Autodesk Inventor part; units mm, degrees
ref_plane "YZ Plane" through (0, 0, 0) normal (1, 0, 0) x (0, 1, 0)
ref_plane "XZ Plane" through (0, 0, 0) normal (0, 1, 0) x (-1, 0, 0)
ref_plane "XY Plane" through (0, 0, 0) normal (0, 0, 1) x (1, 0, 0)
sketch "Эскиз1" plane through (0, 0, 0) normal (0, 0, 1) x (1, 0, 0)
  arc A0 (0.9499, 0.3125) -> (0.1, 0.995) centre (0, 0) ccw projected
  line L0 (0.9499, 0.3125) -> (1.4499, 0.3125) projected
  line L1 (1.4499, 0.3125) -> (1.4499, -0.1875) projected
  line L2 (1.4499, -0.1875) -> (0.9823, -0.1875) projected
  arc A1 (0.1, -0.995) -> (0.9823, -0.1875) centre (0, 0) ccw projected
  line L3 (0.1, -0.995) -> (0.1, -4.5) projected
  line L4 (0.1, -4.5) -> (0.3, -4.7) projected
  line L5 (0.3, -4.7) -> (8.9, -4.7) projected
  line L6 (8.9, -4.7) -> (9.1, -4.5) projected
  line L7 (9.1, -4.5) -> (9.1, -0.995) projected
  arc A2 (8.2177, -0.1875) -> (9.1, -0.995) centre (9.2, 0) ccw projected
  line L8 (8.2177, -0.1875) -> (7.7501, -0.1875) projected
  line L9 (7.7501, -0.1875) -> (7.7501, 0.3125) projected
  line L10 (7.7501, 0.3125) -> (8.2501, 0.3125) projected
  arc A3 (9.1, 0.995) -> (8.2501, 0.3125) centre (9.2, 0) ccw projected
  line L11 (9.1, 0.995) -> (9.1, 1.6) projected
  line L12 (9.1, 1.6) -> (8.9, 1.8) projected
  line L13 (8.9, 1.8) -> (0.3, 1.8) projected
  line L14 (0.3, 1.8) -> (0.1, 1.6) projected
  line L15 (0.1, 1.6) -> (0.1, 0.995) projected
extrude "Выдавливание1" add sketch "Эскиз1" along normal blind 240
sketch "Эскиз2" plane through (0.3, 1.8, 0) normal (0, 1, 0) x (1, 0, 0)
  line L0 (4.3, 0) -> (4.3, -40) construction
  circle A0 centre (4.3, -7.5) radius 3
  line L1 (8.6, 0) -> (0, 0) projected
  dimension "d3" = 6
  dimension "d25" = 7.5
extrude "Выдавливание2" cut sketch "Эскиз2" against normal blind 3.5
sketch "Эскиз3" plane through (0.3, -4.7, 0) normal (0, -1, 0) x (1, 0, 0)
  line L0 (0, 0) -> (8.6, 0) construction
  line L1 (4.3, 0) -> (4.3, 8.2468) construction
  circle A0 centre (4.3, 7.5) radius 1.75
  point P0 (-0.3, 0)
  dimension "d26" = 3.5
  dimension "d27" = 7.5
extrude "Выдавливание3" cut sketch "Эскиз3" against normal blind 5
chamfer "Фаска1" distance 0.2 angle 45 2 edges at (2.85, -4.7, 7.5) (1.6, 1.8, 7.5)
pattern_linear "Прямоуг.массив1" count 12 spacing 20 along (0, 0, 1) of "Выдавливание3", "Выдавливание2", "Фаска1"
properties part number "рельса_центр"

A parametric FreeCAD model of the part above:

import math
import FreeCAD as App
import Part
import Sketcher

V = App.Vector


def edges_at(feature, points):
    """Names of the edges that pass closest to the given points."""
    edges = feature.Shape.Edges
    near = lambda p: min(range(len(edges)), key=lambda i: edges[i].distToShape(Part.Vertex(*p))[0])
    return sorted({f"Edge{near(p) + 1}" for p in points})

doc = App.newDocument("Part")
body = doc.addObject("PartDesign::Body", "Body")

sketch1 = body.newObject("Sketcher::SketchObject", "Sketch")
sketch1.AttachmentSupport = (doc.getObject("XY_Plane"), [""])
sketch1.MapMode = "FlatFace"
sketch1.addGeometry([
    Part.ArcOfCircle(Part.Circle(V(0, 0, 0), V(0, 0, 1), 1), math.radians(18), math.radians(84)),
    Part.LineSegment(V(0.95, 0.31, 0), V(1.45, 0.31, 0)),
    Part.LineSegment(V(1.45, 0.31, 0), V(1.45, -0.19, 0)),
    Part.LineSegment(V(1.45, -0.19, 0), V(0.98, -0.19, 0)),
    Part.ArcOfCircle(Part.Circle(V(0, 0, 0), V(0, 0, 1), 1), math.radians(-84), math.radians(-11)),
    Part.LineSegment(V(0.1, -0.99, 0), V(0.1, -4.5, 0)),
    Part.LineSegment(V(0.1, -4.5, 0), V(0.3, -4.7, 0)),
    Part.LineSegment(V(0.3, -4.7, 0), V(8.9, -4.7, 0)),
    Part.LineSegment(V(8.9, -4.7, 0), V(9.1, -4.5, 0)),
    Part.LineSegment(V(9.1, -4.5, 0), V(9.1, -0.99, 0)),
    Part.ArcOfCircle(Part.Circle(V(9.2, 0, 0), V(0, 0, 1), 1), math.radians(-169), math.radians(-96)),
    Part.LineSegment(V(8.22, -0.19, 0), V(7.75, -0.19, 0)),
    Part.LineSegment(V(7.75, -0.19, 0), V(7.75, 0.31, 0)),
    Part.LineSegment(V(7.75, 0.31, 0), V(8.25, 0.31, 0)),
    Part.ArcOfCircle(Part.Circle(V(9.2, 0, 0), V(0, 0, 1), 1), math.radians(96), math.radians(162)),
    Part.LineSegment(V(9.1, 0.99, 0), V(9.1, 1.6, 0)),
    Part.LineSegment(V(9.1, 1.6, 0), V(8.9, 1.8, 0)),
    Part.LineSegment(V(8.9, 1.8, 0), V(0.3, 1.8, 0)),
    Part.LineSegment(V(0.3, 1.8, 0), V(0.1, 1.6, 0)),
    Part.LineSegment(V(0.1, 1.6, 0), V(0.1, 0.99, 0)),
], False)
sketch1.addConstraint([
    Sketcher.Constraint("Coincident", 0, 1, 1, 1),
    Sketcher.Constraint("Coincident", 1, 2, 2, 1),
    Sketcher.Constraint("Coincident", 2, 2, 3, 1),
    Sketcher.Constraint("Coincident", 3, 2, 4, 2),
    Sketcher.Constraint("Coincident", 4, 1, 5, 1),
    Sketcher.Constraint("Coincident", 5, 2, 6, 1),
    Sketcher.Constraint("Coincident", 6, 2, 7, 1),
    Sketcher.Constraint("Coincident", 7, 2, 8, 1),
    Sketcher.Constraint("Coincident", 8, 2, 9, 1),
    Sketcher.Constraint("Coincident", 9, 2, 10, 2),
    Sketcher.Constraint("Coincident", 10, 1, 11, 1),
    Sketcher.Constraint("Coincident", 11, 2, 12, 1),
    Sketcher.Constraint("Coincident", 12, 2, 13, 1),
    Sketcher.Constraint("Coincident", 13, 2, 14, 2),
    Sketcher.Constraint("Coincident", 14, 1, 15, 1),
    Sketcher.Constraint("Coincident", 15, 2, 16, 1),
    Sketcher.Constraint("Coincident", 16, 2, 17, 1),
    Sketcher.Constraint("Coincident", 17, 2, 18, 1),
    Sketcher.Constraint("Coincident", 18, 2, 19, 1),
    Sketcher.Constraint("Coincident", 19, 2, 0, 2),
    Sketcher.Constraint("Horizontal", 1),
    Sketcher.Constraint("Vertical", 2),
    Sketcher.Constraint("Horizontal", 3),
    Sketcher.Constraint("Vertical", 5),
    Sketcher.Constraint("Horizontal", 7),
    Sketcher.Constraint("Vertical", 9),
    Sketcher.Constraint("Horizontal", 11),
    Sketcher.Constraint("Vertical", 12),
    Sketcher.Constraint("Horizontal", 13),
    Sketcher.Constraint("Vertical", 15),
    Sketcher.Constraint("Horizontal", 17),
    Sketcher.Constraint("Vertical", 19),
    Sketcher.Constraint("Coincident", 0, 3, -1, 1),
    Sketcher.Constraint("Coincident", 4, 3, -1, 1),
    Sketcher.Constraint("Coincident", 14, 3, 10, 3),
    Sketcher.Constraint("Equal", 0, 4),
    Sketcher.Constraint("Equal", 4, 10),
    Sketcher.Constraint("Equal", 10, 14),
    Sketcher.Constraint("Symmetric", 9, 2, 14, 1, -1),
    Sketcher.Constraint("Perpendicular", 6, 8),
    Sketcher.Constraint("Perpendicular", 8, 16),
    Sketcher.Constraint("Perpendicular", 16, 18),
    Sketcher.Constraint("Horizontal", 5, 2, 8, 2),
    Sketcher.Constraint("Horizontal", 4, 1, 9, 2),
    Sketcher.Constraint("Horizontal", 3, 2, 10, 1),
    Sketcher.Constraint("Horizontal", 1, 2, 12, 2),
    Sketcher.Constraint("Horizontal", 15, 2, 18, 2),
    Sketcher.Constraint("Horizontal", 14, 1, 19, 2),
    Sketcher.Constraint("Vertical", 7, 2, 16, 2),
    Sketcher.Constraint("Vertical", 6, 2, 17, 2),
    Sketcher.Constraint("Equal", 3, 11),
    Sketcher.Constraint("Equal", 13, 2),
    Sketcher.Constraint("Radius", 0, 1.0),
    Sketcher.Constraint("DistanceX", 1, 1, 1, 2, 0.5),
    Sketcher.Constraint("DistanceX", 7, 1, 7, 2, 8.6),
    Sketcher.Constraint("DistanceX", -1, 1, 10, 3, 9.2),
    Sketcher.Constraint("DistanceX", -1, 1, 4, 1, 0.1),
    Sketcher.Constraint("DistanceY", 5, 2, -1, 1, 4.5),
    Sketcher.Constraint("DistanceY", -1, 1, 15, 2, 1.6),
    Sketcher.Constraint("DistanceX", -1, 1, 0, 1, 0.95),
])
pad1 = body.newObject("PartDesign::Pad", "Pad")
pad1.Profile = sketch1
pad1.Length = 240

sketch2 = body.newObject("Sketcher::SketchObject", "Sketch001")
sketch2.AttachmentSupport = (doc.getObject("XZ_Plane"), [""])
sketch2.MapMode = "FlatFace"
sketch2.AttachmentOffset = App.Placement(V(0, 0, -1.8), App.Rotation())
sketch2.addGeometry(Part.Circle(V(4.6, 7.5, 0), V(0, 0, 1), 3), False)
sketch2.addConstraint([
    Sketcher.Constraint("Diameter", 0, 6.0),
    Sketcher.Constraint("DistanceY", -1, 1, 0, 3, 7.5),
    Sketcher.Constraint("DistanceX", -1, 1, 0, 3, 4.6),
])
pocket1 = body.newObject("PartDesign::Pocket", "Pocket")
pocket1.Profile = sketch2
pocket1.Length = 3.5
pocket1.Reversed = True

sketch3 = body.newObject("Sketcher::SketchObject", "Sketch002")
sketch3.AttachmentSupport = (doc.getObject("XZ_Plane"), [""])
sketch3.MapMode = "FlatFace"
sketch3.AttachmentOffset = App.Placement(V(0, 0, 4.7), App.Rotation())
sketch3.addGeometry(Part.Circle(V(4.6, 7.5, 0), V(0, 0, 1), 1.8), False)
sketch3.addConstraint([
    Sketcher.Constraint("Diameter", 0, 3.5),
    Sketcher.Constraint("DistanceY", -1, 1, 0, 3, 7.5),
    Sketcher.Constraint("DistanceX", -1, 1, 0, 3, 4.6),
])
pocket2 = body.newObject("PartDesign::Pocket", "Pocket001")
pocket2.Profile = sketch3
pocket2.Length = 5
doc.recompute()

chamfer = body.newObject("PartDesign::Chamfer", "Chamfer")
chamfer.Base = (pocket2, edges_at(pocket2, [(2.85, -4.7, 7.5), (1.6, 1.8, 7.5)]))
chamfer.Size = 0.2
doc.recompute()

linearpattern = body.newObject("PartDesign::LinearPattern", "LinearPattern")
linearpattern.Originals = [pocket2, pocket1, chamfer]
linearpattern.Direction = (doc.getObject("Z_Axis"), [""])
linearpattern.Mode = "offset"
linearpattern.Offset = 20
linearpattern.Occurrences = 12
body.Tip = linearpattern

doc.recompute()
